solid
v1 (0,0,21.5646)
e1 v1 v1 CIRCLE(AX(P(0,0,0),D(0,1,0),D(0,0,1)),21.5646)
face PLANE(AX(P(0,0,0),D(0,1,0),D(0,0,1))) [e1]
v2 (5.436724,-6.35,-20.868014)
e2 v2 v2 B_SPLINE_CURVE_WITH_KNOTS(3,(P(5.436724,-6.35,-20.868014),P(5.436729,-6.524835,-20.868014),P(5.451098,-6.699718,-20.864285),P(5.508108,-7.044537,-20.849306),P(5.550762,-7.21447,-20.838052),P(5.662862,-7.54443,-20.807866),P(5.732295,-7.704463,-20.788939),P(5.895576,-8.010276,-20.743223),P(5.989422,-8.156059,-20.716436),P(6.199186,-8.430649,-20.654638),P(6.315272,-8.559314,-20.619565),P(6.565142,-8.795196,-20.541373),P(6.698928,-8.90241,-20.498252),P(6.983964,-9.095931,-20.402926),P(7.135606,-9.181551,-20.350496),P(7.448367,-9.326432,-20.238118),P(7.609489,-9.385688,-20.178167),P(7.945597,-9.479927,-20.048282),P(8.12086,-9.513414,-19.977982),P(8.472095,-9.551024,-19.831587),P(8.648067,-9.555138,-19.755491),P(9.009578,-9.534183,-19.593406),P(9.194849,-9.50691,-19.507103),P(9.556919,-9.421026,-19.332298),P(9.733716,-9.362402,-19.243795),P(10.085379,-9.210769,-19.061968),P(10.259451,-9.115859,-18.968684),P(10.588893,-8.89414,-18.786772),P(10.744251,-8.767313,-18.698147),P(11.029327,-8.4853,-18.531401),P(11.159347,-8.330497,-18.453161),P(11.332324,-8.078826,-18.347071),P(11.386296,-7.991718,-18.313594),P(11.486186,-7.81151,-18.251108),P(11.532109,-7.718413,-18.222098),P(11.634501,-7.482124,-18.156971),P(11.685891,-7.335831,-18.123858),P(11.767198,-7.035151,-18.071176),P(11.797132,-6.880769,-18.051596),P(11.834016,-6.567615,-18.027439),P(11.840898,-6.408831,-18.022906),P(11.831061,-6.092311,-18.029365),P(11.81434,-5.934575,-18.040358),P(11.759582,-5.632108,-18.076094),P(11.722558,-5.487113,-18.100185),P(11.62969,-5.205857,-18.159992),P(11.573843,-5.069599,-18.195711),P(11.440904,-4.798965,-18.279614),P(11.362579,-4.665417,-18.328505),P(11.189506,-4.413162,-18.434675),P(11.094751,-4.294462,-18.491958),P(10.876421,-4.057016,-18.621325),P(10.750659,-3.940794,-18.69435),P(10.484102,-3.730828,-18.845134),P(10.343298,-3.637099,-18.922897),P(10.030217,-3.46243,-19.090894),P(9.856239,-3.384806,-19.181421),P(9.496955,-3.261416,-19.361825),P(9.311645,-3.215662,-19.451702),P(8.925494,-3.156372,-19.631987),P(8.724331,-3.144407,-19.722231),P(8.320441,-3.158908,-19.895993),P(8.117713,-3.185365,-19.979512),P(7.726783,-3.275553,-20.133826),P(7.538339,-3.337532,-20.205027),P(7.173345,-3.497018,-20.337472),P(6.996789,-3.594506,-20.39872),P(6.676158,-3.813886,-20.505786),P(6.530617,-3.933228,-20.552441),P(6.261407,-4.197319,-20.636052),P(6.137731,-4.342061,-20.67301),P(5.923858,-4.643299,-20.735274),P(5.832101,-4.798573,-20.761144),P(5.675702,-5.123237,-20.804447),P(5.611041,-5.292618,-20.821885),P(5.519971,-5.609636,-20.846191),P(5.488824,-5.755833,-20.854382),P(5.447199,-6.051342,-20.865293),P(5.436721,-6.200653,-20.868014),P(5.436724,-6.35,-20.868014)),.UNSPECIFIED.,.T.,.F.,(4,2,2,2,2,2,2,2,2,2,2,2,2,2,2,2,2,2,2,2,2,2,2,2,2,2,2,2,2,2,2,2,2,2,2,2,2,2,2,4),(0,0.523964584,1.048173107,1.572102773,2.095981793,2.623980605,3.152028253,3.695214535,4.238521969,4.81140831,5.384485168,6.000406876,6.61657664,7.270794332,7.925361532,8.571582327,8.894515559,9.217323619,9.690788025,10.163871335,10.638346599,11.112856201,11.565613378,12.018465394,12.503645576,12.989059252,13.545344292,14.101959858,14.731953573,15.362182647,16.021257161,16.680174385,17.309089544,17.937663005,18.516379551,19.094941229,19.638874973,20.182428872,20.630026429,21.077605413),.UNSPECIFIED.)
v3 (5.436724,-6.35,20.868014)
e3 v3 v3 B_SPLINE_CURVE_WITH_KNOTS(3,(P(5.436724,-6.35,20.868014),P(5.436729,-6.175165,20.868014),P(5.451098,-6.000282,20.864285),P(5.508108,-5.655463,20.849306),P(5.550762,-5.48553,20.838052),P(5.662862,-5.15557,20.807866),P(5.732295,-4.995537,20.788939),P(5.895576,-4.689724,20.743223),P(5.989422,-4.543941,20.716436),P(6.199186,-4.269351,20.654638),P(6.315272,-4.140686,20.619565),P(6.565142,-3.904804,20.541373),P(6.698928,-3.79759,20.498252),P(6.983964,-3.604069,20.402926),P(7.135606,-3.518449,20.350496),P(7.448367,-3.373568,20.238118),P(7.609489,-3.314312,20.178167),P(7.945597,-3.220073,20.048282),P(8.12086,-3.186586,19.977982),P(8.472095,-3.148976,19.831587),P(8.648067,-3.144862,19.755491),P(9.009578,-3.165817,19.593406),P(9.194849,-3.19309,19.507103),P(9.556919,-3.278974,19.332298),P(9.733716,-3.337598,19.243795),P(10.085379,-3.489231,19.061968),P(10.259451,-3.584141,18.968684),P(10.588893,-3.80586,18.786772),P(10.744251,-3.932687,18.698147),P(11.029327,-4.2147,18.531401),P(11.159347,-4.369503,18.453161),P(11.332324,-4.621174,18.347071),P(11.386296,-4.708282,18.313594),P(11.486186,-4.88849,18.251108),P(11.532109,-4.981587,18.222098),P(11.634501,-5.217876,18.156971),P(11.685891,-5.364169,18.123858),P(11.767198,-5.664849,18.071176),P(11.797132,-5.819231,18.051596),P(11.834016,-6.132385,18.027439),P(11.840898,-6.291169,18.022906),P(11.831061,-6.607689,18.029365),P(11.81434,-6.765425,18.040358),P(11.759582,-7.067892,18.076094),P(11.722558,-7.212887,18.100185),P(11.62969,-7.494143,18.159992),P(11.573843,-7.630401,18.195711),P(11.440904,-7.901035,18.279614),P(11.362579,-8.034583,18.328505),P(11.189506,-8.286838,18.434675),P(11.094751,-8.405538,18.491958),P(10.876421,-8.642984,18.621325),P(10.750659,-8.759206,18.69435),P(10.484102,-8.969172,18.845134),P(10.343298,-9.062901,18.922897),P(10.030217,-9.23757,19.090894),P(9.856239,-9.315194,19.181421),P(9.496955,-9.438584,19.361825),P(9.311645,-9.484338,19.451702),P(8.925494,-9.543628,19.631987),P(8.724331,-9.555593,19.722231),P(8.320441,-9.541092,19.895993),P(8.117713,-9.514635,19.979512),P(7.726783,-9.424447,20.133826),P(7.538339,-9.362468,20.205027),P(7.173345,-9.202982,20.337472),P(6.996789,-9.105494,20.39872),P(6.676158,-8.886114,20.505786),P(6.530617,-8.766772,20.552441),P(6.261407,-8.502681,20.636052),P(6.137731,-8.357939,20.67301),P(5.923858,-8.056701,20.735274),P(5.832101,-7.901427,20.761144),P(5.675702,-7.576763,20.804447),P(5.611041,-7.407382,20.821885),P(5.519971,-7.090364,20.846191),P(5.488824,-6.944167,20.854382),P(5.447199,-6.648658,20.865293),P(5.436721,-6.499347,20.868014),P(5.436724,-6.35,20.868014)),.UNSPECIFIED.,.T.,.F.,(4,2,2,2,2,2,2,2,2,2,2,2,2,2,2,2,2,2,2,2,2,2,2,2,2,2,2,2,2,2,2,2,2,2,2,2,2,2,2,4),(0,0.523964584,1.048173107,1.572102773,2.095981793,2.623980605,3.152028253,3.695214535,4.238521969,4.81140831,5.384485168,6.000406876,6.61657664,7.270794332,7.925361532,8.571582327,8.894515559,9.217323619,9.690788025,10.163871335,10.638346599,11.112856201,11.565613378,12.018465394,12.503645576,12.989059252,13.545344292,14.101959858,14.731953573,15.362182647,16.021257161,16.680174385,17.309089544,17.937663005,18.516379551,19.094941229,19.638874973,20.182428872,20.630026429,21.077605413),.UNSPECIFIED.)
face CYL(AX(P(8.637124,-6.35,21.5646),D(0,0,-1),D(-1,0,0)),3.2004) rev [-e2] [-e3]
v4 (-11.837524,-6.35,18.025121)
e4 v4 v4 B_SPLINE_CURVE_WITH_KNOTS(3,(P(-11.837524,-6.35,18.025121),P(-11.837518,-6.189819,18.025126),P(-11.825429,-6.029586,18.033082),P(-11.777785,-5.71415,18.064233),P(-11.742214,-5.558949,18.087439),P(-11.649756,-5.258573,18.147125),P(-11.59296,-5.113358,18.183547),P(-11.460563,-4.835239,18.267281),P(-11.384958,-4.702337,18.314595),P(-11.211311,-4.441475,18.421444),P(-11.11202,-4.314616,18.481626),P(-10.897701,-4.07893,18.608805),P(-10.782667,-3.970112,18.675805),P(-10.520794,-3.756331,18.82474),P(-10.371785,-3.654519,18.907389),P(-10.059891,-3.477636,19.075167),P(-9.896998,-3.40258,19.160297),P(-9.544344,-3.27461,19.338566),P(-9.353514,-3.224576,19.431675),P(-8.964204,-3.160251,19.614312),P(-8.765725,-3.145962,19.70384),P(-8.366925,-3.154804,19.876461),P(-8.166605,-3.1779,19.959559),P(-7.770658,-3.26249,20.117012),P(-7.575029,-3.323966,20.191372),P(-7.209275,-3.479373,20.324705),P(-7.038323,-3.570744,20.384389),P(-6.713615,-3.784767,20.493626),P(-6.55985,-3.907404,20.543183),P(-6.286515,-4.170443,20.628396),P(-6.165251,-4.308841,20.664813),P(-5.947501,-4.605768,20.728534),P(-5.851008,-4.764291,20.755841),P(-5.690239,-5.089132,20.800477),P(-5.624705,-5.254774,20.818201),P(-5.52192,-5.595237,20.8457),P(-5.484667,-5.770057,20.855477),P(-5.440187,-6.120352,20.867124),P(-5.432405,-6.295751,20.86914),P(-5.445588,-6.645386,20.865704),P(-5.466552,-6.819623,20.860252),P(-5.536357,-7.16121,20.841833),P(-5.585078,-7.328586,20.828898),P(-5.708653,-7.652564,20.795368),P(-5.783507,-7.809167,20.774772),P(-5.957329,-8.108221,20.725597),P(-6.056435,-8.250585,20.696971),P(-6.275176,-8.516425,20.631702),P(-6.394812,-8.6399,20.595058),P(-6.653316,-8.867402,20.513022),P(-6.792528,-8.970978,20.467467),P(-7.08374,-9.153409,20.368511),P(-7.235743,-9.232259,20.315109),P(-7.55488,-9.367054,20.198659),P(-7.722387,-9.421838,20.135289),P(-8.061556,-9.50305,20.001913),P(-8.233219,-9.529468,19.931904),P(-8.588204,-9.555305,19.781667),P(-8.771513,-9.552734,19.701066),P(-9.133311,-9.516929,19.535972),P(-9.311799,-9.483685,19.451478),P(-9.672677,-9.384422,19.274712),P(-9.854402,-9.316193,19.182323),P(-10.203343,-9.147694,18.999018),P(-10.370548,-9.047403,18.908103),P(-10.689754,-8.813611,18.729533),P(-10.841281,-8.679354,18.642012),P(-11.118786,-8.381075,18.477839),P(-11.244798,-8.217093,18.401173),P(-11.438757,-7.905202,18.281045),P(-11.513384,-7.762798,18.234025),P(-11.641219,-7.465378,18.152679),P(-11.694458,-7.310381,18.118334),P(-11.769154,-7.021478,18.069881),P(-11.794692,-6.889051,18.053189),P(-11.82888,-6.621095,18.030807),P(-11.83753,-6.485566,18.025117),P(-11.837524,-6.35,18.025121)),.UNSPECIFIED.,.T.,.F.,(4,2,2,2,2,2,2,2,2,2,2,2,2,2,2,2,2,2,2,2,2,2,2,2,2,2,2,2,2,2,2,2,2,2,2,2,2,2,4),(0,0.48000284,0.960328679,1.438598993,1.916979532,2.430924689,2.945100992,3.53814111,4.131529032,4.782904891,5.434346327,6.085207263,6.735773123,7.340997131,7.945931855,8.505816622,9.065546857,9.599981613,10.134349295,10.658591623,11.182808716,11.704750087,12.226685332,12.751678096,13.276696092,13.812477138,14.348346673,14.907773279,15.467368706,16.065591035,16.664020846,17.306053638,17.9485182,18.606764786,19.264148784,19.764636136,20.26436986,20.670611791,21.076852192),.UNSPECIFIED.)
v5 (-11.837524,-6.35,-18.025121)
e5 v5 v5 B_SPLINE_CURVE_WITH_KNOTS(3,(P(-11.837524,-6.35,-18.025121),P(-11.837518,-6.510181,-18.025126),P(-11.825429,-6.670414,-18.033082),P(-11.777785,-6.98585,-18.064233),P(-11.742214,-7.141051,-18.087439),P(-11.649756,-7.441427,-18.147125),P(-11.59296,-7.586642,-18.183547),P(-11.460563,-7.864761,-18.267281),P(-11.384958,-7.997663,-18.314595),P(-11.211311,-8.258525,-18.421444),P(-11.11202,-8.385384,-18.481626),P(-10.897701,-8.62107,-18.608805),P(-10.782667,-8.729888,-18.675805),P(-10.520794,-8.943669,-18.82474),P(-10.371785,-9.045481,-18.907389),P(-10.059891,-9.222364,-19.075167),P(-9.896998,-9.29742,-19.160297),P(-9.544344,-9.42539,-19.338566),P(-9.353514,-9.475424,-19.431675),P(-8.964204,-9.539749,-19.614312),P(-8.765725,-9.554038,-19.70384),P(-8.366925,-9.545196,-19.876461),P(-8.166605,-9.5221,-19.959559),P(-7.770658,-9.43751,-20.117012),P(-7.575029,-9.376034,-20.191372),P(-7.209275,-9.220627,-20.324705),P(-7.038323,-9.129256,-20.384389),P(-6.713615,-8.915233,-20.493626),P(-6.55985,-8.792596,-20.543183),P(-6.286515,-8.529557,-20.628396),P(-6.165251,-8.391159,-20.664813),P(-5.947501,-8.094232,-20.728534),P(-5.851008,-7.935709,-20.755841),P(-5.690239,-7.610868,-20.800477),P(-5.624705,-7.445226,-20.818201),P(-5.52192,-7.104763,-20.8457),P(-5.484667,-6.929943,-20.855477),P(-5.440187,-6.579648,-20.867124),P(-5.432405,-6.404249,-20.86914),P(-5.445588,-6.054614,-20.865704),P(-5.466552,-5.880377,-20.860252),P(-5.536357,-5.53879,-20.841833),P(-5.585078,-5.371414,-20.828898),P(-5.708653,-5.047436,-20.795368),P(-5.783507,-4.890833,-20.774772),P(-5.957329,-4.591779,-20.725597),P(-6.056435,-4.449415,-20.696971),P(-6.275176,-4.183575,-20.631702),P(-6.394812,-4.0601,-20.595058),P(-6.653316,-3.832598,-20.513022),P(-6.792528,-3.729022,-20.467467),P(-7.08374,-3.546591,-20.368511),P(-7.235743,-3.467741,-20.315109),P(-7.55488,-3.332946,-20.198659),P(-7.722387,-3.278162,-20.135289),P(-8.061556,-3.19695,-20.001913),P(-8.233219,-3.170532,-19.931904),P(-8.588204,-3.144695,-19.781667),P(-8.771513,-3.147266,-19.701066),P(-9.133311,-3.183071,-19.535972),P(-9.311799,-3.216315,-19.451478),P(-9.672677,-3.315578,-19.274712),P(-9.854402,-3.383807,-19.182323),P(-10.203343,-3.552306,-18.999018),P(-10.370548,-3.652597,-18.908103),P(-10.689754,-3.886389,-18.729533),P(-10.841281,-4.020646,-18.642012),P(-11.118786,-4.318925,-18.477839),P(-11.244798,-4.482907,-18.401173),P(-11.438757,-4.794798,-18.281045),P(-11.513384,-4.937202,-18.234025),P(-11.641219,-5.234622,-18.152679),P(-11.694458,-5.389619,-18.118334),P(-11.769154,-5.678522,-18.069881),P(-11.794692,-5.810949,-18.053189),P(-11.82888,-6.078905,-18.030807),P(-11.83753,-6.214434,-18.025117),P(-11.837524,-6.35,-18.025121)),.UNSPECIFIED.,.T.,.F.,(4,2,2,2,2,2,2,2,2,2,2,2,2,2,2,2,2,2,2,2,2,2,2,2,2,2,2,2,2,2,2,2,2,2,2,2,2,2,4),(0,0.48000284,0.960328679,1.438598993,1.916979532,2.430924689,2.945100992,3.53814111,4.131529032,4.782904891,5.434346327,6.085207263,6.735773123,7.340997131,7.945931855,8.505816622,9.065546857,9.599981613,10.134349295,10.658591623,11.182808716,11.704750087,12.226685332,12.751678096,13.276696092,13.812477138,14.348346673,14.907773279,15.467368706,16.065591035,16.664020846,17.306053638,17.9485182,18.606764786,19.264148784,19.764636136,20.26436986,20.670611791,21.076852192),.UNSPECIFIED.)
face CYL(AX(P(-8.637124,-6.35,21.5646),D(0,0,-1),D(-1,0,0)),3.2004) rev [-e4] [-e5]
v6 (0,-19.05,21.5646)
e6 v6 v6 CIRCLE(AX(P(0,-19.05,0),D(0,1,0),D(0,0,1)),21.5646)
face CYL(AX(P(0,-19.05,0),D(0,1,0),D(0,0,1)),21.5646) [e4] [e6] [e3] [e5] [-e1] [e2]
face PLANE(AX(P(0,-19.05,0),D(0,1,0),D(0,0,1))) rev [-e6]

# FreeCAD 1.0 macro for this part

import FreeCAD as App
import Part
import Sketcher
from FreeCAD import Vector
Q = App.Units.Quantity

doc = App.newDocument("Part")
body = doc.addObject("PartDesign::Body", "Body")

# Sketch on XZ plane
sketch1 = doc.addObject("Sketcher::SketchObject", "Sketch")
body.addObject(sketch1)
sketch1.AttachmentSupport = (doc.XZ_Plane, [""])
sketch1.MapMode = "FlatFace"
sketch1.addGeometry(Part.Circle(Vector(0, 0, 0), Vector(0, 0, 1), 22), False)
sketch1.addConstraint([
    Sketcher.Constraint("Coincident", 0, 3, -1, 1),
    Sketcher.Constraint("Diameter", 0, Q("1.698 in")),
])
pad1 = doc.addObject("PartDesign::Pad", "Pad")
body.addObject(pad1)
pad1.Profile = sketch1
pad1.Length = Q("0.75 in")

# Sketch on XY plane
sketch2 = doc.addObject("Sketcher::SketchObject", "Sketch001")
body.addObject(sketch2)
sketch2.AttachmentSupport = (doc.XY_Plane, [""])
sketch2.MapMode = "FlatFace"
sketch2.AttachmentOffset = App.Placement(Vector(0, 0, -0.85 * 25.4), App.Rotation())
sketch2.addGeometry([
    Part.Circle(Vector(8.6, -6.3, 0), Vector(0, 0, 1), 3.2),
    Part.Circle(Vector(-8.6, -6.3, 0), Vector(0, 0, 1), 3.2),
], False)
sketch2.addConstraint([
    Sketcher.Constraint("Equal", 0, 1),
    Sketcher.Constraint("Symmetric", 0, 3, 1, 3, -2),
    Sketcher.Constraint("Diameter", 0, Q("0.252 in")),
    Sketcher.Constraint("DistanceY", 0, 3, -1, 1, Q("0.25 in")),
    Sketcher.Constraint("DistanceX", 1, 3, 0, 3, 17.274249),
])
pocket1 = doc.addObject("PartDesign::Pocket", "Pocket")
body.addObject(pocket1)
pocket1.Profile = sketch2
pocket1.Type = "ThroughAll"
pocket1.Reversed = True

doc.recompute()
